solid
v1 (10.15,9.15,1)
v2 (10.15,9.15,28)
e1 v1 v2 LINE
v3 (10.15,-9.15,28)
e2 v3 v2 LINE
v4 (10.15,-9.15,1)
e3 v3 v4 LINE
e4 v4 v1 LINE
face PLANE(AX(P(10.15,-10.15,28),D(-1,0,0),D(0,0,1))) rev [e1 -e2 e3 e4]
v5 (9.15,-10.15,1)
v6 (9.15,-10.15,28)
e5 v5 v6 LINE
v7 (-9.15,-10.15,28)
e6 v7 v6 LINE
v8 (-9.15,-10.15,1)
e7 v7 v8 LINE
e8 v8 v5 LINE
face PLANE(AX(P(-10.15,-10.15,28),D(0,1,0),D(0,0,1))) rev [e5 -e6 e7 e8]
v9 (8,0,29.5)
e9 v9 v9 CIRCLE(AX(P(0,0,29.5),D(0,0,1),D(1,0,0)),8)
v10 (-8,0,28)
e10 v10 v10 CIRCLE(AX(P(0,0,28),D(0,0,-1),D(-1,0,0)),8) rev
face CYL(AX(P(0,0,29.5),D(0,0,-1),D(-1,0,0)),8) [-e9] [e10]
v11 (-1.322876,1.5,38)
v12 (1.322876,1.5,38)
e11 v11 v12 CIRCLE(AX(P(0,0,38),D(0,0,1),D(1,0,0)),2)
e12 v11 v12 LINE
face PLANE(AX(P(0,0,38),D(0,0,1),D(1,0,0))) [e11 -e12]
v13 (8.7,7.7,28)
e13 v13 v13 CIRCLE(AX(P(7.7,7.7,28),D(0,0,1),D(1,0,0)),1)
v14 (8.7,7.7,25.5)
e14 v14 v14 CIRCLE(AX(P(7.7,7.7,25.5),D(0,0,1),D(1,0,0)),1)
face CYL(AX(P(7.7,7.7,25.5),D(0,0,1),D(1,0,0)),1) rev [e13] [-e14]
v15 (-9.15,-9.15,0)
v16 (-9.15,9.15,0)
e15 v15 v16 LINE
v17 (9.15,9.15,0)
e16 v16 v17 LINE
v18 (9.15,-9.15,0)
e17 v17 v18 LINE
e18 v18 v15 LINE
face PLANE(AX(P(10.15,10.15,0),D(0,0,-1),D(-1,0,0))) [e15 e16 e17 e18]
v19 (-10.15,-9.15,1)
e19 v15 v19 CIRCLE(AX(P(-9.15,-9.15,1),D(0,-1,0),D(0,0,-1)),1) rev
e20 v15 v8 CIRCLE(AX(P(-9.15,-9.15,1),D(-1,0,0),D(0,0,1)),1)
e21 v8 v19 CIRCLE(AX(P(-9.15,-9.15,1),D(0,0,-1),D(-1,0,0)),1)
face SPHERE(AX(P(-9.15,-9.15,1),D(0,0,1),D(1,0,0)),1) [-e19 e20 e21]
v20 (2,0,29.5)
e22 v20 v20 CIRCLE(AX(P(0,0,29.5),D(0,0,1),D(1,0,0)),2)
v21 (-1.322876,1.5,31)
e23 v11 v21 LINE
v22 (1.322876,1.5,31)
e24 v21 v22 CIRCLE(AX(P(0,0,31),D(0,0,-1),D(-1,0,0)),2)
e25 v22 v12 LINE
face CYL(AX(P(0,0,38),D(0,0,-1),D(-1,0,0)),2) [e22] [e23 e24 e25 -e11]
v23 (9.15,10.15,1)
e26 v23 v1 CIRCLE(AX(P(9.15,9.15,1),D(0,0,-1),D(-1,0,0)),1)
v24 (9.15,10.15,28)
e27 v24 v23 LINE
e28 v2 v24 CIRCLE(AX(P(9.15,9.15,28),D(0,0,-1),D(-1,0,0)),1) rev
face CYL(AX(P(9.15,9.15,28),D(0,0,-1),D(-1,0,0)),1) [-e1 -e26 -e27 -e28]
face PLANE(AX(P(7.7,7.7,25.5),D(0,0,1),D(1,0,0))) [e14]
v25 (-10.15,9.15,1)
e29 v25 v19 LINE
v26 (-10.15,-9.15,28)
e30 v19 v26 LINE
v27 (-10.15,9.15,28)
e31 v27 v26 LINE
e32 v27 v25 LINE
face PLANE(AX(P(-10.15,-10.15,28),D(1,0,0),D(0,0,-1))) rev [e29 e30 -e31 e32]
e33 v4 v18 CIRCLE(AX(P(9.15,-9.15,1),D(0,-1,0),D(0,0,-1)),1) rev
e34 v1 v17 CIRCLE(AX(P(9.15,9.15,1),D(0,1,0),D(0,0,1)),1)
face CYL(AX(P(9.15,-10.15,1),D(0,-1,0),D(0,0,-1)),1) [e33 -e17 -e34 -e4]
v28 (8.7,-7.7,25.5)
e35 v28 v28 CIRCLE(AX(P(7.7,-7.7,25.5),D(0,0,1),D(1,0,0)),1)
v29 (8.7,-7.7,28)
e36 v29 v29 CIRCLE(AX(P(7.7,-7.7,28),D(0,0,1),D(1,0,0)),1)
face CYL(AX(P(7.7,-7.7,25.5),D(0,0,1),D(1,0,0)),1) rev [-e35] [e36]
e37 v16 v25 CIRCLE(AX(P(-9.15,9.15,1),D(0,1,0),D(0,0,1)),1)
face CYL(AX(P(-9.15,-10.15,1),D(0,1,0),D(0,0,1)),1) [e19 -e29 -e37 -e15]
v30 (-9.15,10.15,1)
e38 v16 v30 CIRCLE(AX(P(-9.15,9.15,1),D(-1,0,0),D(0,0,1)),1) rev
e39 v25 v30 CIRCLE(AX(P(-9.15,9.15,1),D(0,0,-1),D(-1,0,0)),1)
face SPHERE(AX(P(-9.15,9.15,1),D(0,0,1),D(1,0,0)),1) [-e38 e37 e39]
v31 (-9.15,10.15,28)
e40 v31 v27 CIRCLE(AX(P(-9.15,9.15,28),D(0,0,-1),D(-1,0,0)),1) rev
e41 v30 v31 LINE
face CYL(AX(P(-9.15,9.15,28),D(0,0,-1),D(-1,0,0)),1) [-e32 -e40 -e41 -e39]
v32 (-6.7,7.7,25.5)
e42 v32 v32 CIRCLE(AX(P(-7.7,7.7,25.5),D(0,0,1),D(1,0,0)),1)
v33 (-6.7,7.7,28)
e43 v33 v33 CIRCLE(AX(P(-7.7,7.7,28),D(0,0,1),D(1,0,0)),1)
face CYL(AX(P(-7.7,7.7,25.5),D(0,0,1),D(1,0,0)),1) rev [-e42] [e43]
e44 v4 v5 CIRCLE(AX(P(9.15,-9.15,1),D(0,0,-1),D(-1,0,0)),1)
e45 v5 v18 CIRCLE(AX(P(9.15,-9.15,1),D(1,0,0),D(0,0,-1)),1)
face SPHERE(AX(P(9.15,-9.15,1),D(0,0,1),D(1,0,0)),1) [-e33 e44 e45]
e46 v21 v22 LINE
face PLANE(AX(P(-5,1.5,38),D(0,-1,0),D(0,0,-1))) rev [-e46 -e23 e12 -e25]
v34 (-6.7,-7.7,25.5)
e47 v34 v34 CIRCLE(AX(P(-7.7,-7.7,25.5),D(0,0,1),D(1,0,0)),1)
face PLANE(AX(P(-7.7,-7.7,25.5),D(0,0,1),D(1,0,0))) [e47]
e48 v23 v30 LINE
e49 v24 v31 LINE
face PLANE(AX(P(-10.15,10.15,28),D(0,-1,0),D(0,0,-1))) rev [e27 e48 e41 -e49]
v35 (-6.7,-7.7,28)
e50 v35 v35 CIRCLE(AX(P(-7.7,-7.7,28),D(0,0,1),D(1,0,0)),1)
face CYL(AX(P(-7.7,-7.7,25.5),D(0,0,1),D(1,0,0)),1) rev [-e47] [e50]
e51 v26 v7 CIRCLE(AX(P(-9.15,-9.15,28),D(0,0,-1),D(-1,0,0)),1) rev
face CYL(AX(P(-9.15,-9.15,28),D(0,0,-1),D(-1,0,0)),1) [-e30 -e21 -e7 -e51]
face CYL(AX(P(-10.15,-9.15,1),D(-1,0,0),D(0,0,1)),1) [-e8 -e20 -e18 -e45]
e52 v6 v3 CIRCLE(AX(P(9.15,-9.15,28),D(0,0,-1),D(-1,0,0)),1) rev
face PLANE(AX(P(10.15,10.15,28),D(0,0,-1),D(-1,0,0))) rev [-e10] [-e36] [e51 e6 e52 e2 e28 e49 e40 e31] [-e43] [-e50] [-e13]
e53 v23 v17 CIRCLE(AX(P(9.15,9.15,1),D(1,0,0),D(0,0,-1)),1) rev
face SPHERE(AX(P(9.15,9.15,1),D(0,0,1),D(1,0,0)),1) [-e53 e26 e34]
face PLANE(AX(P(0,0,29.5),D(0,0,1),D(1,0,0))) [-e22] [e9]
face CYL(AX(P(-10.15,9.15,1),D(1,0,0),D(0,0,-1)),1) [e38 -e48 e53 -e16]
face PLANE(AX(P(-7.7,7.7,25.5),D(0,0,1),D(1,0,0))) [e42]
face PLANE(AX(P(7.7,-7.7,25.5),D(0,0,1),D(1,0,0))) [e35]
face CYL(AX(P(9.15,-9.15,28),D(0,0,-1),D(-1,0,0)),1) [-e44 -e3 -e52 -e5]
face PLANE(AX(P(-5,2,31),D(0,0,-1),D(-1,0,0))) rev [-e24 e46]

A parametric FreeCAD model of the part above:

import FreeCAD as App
import Part
import Sketcher


def edges_at(feature, points):
    """Names of the edges that pass closest to the given points."""
    edges = feature.Shape.Edges
    near = lambda p: min(range(len(edges)), key=lambda i: edges[i].distToShape(Part.Vertex(*p))[0])
    return sorted({f"Edge{near(p) + 1}" for p in points})


def add_polygon(sketch, points):
    """Adds a closed chain of lines whose ends are joined by coincident constraints."""
    first, n = sketch.GeometryCount, len(points)
    for a, b in zip(points, points[1:] + points[:1]):
        sketch.addGeometry(Part.LineSegment(App.Vector(*a, 0), App.Vector(*b, 0)), False)
    for i in range(n):
        sketch.addConstraint(Sketcher.Constraint("Coincident", first + i, 2, first + (i + 1) % n, 1))

doc = App.newDocument("Part")
body = doc.addObject("PartDesign::Body", "Body")

# Sketch on XY plane
sketch1 = body.newObject("Sketcher::SketchObject", "Sketch")
sketch1.AttachmentSupport = (doc.getObject("XY_Plane"), [""])
sketch1.MapMode = "FlatFace"
add_polygon(sketch1, [(-10, 10), (-10, -10), (10, -10), (10, 10)])  # lines 0-3
sketch1.addConstraint(Sketcher.Constraint("Vertical", 0))
sketch1.addConstraint(Sketcher.Constraint("Horizontal", 1))
sketch1.addConstraint(Sketcher.Constraint("Vertical", 2))
sketch1.addConstraint(Sketcher.Constraint("Horizontal", 3))
sketch1.addConstraint(Sketcher.Constraint("Symmetric", 0, 2, 2, 2, -1, 1))
sketch1.addConstraint(Sketcher.Constraint("Equal", 3, 0))
sketch1.addConstraint(Sketcher.Constraint("DistanceX", 1, 1, 1, 2, 20.3))
pad1 = body.newObject("PartDesign::Pad", "Pad")
pad1.Profile = sketch1
pad1.Length = 28

# Sketch on XY plane
sketch2 = body.newObject("Sketcher::SketchObject", "Sketch001")
sketch2.AttachmentSupport = (doc.getObject("XY_Plane"), [""])
sketch2.MapMode = "FlatFace"
sketch2.AttachmentOffset = App.Placement(App.Vector(0, 0, 28), App.Rotation())
sketch2.addGeometry(Part.Circle(App.Vector(0, 0, 0), App.Vector(0, 0, 1), 8), False)
sketch2.addConstraint(Sketcher.Constraint("Coincident", 0, 3, -1, 1))
sketch2.addConstraint(Sketcher.Constraint("Diameter", 0, 16.0))
pad2 = body.newObject("PartDesign::Pad", "Pad001")
pad2.Profile = sketch2
pad2.Length = 1.5

# Sketch on XY plane
sketch3 = body.newObject("Sketcher::SketchObject", "Sketch002")
sketch3.AttachmentSupport = (doc.getObject("XY_Plane"), [""])
sketch3.MapMode = "FlatFace"
sketch3.AttachmentOffset = App.Placement(App.Vector(0, 0, 29.5), App.Rotation())
sketch3.addGeometry(Part.Circle(App.Vector(0, 0, 0), App.Vector(0, 0, 1), 2), False)
sketch3.addConstraint(Sketcher.Constraint("Coincident", 0, 3, -1, 1))
sketch3.addConstraint(Sketcher.Constraint("Diameter", 0, 4.0))
pad3 = body.newObject("PartDesign::Pad", "Pad002")
pad3.Profile = sketch3
pad3.Length = 8.5

# Sketch on YZ plane
sketch4 = body.newObject("Sketcher::SketchObject", "Sketch003")
sketch4.AttachmentSupport = (doc.getObject("YZ_Plane"), [""])
sketch4.MapMode = "FlatFace"
add_polygon(sketch4, [(2, 38), (1.5, 38), (1.5, 31), (2, 31)])  # lines 0-3
sketch4.addConstraint(Sketcher.Constraint("Horizontal", 0))
sketch4.addConstraint(Sketcher.Constraint("Vertical", 1))
sketch4.addConstraint(Sketcher.Constraint("Horizontal", 2))
sketch4.addConstraint(Sketcher.Constraint("Vertical", 3))
sketch4.addConstraint(Sketcher.Constraint("DistanceY", 1, 2, 1, 1, 7.0))
sketch4.addConstraint(Sketcher.Constraint("DistanceX", 0, 2, 0, 1, 0.5))
sketch4.addConstraint(Sketcher.Constraint("DistanceY", -1, 1, 0, 2, 38.0))
sketch4.addConstraint(Sketcher.Constraint("DistanceX", -1, 1, 2, 2, 2.0))
pocket1 = body.newObject("PartDesign::Pocket", "Pocket")
pocket1.Profile = sketch4
pocket1.Length = 10
pocket1.Midplane = True

# Sketch on XY plane
sketch5 = body.newObject("Sketcher::SketchObject", "Sketch004")
sketch5.AttachmentSupport = (doc.getObject("XY_Plane"), [""])
sketch5.MapMode = "FlatFace"
sketch5.AttachmentOffset = App.Placement(App.Vector(0, 0, 28), App.Rotation())
sketch5.addGeometry(Part.Circle(App.Vector(-7.7, 7.7, 0), App.Vector(0, 0, 1), 1), False)
sketch5.addGeometry(Part.Circle(App.Vector(7.7, 7.7, 0), App.Vector(0, 0, 1), 1), False)
sketch5.addGeometry(Part.Circle(App.Vector(7.7, -7.7, 0), App.Vector(0, 0, 1), 1), False)
sketch5.addGeometry(Part.Circle(App.Vector(-7.7, -7.7, 0), App.Vector(0, 0, 1), 1), False)
sketch5.addConstraint(Sketcher.Constraint("Equal", 0, 1))
sketch5.addConstraint(Sketcher.Constraint("Equal", 1, 2))
sketch5.addConstraint(Sketcher.Constraint("Equal", 2, 3))
sketch5.addConstraint(Sketcher.Constraint("Symmetric", 0, 3, 2, 3, -1, 1))
sketch5.addConstraint(Sketcher.Constraint("Symmetric", 1, 3, 3, 3, -1, 1))
sketch5.addConstraint(Sketcher.Constraint("Symmetric", 0, 3, 1, 3, -2))
sketch5.addConstraint(Sketcher.Constraint("Diameter", 0, 2.0))
sketch5.addConstraint(Sketcher.Constraint("DistanceX", 0, 3, -1, 1, 7.7))
sketch5.addConstraint(Sketcher.Constraint("DistanceY", -1, 1, 0, 3, 7.7))
pocket2 = body.newObject("PartDesign::Pocket", "Pocket001")
pocket2.Profile = sketch5
pocket2.Length = 2.5
doc.recompute()

fillet = body.newObject("PartDesign::Fillet", "Fillet")
fillet.Base = (pocket2, edges_at(pocket2, [
    (0, -10.15, 0),
    (-10.15, 0, 0),
    (0, 10.15, 0),
    (10.15, 0, 0),
    (10.15, -10.15, 14),
    (-10.15, -10.15, 14),
    (-10.15, 10.15, 14),
    (10.15, 10.15, 14),
]))
fillet.Radius = 1

doc.recompute()
